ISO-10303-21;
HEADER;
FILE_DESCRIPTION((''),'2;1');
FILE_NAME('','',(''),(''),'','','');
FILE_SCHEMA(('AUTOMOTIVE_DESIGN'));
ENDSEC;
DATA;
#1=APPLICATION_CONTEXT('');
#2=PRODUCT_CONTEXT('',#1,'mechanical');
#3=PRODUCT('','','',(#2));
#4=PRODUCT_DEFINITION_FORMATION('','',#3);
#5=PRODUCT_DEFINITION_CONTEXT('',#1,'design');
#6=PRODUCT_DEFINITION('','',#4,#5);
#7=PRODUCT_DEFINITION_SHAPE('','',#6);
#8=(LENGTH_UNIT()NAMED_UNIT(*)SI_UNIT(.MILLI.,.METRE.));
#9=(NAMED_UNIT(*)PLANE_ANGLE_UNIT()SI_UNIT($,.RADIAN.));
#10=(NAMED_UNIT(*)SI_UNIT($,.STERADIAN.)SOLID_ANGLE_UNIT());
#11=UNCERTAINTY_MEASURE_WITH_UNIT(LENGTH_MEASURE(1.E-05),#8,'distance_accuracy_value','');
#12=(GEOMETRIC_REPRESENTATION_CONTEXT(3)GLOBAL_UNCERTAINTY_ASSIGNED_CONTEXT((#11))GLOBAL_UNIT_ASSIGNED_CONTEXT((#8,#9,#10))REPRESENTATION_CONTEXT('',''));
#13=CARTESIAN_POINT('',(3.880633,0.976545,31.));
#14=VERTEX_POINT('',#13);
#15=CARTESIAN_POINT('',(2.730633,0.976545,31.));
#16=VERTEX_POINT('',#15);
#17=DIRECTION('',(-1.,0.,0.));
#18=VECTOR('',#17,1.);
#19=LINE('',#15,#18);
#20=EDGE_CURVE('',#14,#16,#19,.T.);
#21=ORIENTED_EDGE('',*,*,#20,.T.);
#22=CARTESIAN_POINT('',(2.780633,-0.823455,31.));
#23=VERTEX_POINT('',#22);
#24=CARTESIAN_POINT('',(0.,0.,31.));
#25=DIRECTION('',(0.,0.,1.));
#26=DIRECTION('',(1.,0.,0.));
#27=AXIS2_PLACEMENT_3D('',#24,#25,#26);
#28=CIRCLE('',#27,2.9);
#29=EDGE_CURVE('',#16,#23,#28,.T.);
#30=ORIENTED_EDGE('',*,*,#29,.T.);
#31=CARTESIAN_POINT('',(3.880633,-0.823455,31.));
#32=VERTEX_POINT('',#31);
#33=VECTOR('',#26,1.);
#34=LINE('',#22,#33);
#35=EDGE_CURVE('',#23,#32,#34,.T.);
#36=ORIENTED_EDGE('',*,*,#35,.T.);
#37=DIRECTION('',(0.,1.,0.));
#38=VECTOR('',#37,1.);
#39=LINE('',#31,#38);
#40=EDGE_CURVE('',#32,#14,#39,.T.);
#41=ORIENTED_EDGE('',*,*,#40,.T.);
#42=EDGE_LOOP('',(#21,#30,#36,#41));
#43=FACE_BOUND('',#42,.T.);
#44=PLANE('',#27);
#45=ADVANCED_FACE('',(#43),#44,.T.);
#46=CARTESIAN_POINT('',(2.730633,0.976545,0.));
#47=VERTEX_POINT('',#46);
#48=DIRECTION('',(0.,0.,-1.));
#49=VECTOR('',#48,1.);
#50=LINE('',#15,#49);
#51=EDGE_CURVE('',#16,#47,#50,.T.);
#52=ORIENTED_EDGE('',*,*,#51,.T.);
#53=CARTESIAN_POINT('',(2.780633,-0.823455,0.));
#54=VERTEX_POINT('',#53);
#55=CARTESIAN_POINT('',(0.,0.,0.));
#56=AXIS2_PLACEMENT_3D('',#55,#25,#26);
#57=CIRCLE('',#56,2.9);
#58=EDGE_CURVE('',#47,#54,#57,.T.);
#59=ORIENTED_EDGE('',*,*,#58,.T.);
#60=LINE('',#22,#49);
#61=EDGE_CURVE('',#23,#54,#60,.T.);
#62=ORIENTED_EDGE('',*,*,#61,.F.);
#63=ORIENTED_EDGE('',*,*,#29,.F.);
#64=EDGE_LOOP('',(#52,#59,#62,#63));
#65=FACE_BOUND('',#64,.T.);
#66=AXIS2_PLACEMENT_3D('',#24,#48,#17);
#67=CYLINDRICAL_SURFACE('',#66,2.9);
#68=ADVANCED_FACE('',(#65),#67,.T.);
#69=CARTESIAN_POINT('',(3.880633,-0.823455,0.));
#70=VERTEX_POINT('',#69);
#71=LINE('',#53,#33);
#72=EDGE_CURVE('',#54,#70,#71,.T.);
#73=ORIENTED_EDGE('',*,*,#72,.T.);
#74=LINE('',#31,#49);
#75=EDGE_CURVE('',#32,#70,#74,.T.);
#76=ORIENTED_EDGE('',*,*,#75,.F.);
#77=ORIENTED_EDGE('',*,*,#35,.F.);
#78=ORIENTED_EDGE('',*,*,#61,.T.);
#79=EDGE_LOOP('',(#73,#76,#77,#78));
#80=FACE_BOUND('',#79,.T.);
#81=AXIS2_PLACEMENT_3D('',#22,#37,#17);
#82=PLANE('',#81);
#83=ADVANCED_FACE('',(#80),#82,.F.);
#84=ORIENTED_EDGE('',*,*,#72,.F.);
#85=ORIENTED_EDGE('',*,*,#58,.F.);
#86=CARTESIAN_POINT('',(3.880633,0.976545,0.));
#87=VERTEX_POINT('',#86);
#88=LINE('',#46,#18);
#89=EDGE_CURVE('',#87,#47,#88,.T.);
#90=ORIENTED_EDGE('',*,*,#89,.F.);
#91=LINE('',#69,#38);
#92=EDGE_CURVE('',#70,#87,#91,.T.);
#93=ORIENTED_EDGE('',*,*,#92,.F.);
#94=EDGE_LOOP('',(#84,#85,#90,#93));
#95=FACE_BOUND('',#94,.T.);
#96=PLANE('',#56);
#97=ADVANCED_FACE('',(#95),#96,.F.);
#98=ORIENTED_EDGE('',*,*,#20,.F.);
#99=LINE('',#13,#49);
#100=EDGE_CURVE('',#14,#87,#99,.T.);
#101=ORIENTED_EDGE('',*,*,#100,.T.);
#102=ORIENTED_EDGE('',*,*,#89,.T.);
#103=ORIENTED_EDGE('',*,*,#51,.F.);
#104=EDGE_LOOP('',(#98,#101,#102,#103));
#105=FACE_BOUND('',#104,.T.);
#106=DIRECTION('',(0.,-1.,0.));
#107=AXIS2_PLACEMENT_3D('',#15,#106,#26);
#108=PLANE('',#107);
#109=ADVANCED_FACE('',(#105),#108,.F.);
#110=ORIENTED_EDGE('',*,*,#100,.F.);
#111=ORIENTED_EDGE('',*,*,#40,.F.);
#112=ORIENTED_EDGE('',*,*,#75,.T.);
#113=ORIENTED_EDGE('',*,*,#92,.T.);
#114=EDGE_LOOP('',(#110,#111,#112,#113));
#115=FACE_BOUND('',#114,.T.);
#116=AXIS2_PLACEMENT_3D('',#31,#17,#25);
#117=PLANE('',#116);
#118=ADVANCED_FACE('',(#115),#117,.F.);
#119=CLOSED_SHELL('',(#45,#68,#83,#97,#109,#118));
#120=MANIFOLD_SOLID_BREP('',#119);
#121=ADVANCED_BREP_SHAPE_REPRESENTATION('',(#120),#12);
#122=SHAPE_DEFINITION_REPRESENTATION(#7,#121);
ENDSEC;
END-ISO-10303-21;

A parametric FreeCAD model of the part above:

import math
import FreeCAD as App
import Part
import Sketcher
Q = App.Units.Quantity

doc = App.newDocument("Part")
body = doc.addObject("PartDesign::Body", "Body")

sketch1 = body.newObject("Sketcher::SketchObject", "Sketch")
sketch1.AttachmentSupport = (doc.getObject("XY_Plane"), [""])
sketch1.MapMode = "FlatFace"
sketch1.addGeometry(Part.LineSegment(App.Vector(2.8, -0.8, 0), App.Vector(3.9, -0.8, 0)), False)
sketch1.addGeometry(Part.LineSegment(App.Vector(3.9, -0.8, 0), App.Vector(3.9, 1, 0)), False)
sketch1.addGeometry(Part.LineSegment(App.Vector(3.9, 1, 0), App.Vector(2.7, 1, 0)), False)
sketch1.addGeometry(Part.ArcOfCircle(Part.Circle(App.Vector(0, 0, 0), App.Vector(0, 0, 1), 2.9), math.radians(20), math.radians(344)), False)
sketch1.addConstraint(Sketcher.Constraint("Coincident", 0, 2, 1, 1))
sketch1.addConstraint(Sketcher.Constraint("Coincident", 1, 2, 2, 1))
sketch1.addConstraint(Sketcher.Constraint("Coincident", 2, 2, 3, 1))
sketch1.addConstraint(Sketcher.Constraint("Coincident", 3, 2, 0, 1))
sketch1.addConstraint(Sketcher.Constraint("Horizontal", 0))
sketch1.addConstraint(Sketcher.Constraint("Vertical", 1))
sketch1.addConstraint(Sketcher.Constraint("Horizontal", 2))
sketch1.addConstraint(Sketcher.Constraint("Coincident", 3, 3, -1, 1))
sketch1.addConstraint(Sketcher.Constraint("Radius", 3, Q("2.9 mm")))
sketch1.addConstraint(Sketcher.Constraint("DistanceX", 0, 1, 0, 2, Q("1.1 mm")))
sketch1.addConstraint(Sketcher.Constraint("DistanceY", 1, 1, 1, 2, Q("1.8 mm")))
sketch1.addConstraint(Sketcher.Constraint("DistanceX", 2, 2, 2, 1, Q("1.15 mm")))
pad1 = body.newObject("PartDesign::Pad", "Pad")
pad1.Profile = sketch1
pad1.Length = 31

doc.recompute()
